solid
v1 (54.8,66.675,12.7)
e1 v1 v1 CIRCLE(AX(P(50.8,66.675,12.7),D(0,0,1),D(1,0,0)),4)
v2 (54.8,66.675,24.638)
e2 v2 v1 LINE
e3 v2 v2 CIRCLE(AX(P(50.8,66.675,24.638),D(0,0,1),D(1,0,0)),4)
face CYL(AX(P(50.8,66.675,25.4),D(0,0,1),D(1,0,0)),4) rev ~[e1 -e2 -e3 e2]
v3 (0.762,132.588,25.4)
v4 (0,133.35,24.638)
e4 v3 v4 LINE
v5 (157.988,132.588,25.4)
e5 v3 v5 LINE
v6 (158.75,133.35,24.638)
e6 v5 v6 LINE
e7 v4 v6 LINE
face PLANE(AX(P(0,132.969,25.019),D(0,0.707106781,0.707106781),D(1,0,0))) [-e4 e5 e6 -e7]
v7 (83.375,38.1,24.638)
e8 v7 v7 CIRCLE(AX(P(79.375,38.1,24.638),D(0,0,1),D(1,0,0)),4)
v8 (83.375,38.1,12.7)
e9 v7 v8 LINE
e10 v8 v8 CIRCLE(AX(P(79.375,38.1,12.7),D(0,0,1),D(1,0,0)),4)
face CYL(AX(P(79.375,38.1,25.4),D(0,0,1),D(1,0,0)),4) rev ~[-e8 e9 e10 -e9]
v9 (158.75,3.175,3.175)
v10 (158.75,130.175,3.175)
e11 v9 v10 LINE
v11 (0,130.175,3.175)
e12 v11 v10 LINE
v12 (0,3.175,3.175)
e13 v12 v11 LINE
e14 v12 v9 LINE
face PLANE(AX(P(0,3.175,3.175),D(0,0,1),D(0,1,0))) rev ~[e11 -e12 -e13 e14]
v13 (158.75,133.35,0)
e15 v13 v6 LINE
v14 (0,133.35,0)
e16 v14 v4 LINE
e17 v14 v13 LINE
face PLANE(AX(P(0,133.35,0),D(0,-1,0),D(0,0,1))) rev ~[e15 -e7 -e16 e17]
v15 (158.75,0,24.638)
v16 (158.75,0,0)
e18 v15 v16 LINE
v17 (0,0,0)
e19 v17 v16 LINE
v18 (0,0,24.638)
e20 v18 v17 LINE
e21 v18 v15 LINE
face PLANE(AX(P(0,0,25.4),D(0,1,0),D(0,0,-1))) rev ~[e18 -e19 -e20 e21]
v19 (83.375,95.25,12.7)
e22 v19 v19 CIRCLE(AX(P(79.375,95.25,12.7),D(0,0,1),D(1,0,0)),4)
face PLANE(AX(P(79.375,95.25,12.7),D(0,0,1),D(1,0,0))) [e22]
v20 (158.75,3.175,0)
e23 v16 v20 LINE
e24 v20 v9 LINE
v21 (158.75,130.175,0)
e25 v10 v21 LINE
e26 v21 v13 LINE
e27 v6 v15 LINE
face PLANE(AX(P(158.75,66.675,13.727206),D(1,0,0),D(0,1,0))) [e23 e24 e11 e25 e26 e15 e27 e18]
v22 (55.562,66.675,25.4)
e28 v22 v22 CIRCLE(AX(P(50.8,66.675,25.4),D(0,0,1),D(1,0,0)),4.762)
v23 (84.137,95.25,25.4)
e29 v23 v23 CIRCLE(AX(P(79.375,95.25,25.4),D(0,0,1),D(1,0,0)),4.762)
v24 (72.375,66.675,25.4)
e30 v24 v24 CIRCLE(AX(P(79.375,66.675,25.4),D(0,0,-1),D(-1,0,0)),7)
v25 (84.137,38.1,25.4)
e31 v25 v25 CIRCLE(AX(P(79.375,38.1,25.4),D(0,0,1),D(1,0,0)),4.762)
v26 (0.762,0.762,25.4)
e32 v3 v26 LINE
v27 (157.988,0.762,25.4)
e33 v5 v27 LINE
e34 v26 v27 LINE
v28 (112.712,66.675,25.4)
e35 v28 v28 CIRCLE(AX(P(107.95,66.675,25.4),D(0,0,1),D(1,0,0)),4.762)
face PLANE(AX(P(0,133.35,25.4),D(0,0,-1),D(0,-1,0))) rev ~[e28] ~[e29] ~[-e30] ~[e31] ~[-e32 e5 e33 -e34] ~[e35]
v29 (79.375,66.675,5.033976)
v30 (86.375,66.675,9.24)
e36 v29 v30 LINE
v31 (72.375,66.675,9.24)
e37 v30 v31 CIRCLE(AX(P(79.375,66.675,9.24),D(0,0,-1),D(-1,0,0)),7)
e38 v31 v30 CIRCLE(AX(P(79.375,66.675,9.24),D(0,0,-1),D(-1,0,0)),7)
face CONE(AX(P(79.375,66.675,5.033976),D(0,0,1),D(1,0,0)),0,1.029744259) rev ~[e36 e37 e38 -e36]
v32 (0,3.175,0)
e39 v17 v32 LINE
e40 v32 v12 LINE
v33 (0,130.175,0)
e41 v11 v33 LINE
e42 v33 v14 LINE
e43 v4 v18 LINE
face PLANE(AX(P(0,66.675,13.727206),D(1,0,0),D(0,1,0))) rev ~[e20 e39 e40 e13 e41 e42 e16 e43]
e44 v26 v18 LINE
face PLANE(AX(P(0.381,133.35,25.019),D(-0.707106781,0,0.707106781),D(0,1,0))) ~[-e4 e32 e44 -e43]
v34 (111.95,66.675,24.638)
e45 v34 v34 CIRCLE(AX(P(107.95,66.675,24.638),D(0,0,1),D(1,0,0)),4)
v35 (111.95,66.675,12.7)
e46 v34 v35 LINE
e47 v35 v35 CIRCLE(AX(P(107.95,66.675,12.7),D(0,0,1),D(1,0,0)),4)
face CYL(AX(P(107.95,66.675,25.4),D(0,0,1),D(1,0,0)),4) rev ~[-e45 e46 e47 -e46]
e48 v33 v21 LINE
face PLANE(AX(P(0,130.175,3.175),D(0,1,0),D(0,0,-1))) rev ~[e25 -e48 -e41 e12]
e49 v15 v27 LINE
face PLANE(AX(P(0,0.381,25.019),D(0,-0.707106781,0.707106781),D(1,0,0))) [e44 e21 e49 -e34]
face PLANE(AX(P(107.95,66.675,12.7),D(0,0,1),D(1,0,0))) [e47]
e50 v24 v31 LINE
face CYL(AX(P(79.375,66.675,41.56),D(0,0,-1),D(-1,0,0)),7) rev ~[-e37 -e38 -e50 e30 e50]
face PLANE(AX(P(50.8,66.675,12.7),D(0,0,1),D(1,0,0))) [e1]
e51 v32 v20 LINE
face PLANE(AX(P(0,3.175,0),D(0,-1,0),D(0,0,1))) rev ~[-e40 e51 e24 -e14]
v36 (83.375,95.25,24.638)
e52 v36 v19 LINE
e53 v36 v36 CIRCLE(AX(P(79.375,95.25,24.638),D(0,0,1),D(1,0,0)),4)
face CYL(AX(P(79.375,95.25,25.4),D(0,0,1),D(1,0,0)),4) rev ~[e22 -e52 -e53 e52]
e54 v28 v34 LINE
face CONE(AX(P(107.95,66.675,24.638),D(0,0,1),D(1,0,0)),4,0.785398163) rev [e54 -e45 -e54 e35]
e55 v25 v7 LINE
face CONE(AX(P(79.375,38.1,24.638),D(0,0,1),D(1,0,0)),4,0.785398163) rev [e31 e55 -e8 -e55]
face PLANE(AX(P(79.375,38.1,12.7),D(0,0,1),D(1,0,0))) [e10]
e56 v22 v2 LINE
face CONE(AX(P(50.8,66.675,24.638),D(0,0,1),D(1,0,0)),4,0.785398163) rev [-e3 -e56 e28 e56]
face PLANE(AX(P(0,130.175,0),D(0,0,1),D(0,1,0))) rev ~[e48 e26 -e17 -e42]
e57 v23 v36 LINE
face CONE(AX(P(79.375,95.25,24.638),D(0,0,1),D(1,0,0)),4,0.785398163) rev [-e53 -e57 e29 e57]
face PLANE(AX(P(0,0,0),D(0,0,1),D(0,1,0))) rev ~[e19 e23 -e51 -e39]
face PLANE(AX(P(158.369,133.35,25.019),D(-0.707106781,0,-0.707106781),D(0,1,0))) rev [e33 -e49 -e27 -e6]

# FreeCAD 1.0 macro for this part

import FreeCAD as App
import Part
import Sketcher
Q = App.Units.Quantity


def edges_at(feature, points):
    """Names of the edges that pass closest to the given points."""
    edges = feature.Shape.Edges
    near = lambda p: min(range(len(edges)), key=lambda i: edges[i].distToShape(Part.Vertex(*p))[0])
    return sorted({f"Edge{near(p) + 1}" for p in points})


def add_polygon(sketch, points):
    """Adds a closed chain of lines whose ends are joined by coincident constraints."""
    first, n = sketch.GeometryCount, len(points)
    for a, b in zip(points, points[1:] + points[:1]):
        sketch.addGeometry(Part.LineSegment(App.Vector(*a, 0), App.Vector(*b, 0)), False)
    for i in range(n):
        sketch.addConstraint(Sketcher.Constraint("Coincident", first + i, 2, first + (i + 1) % n, 1))

doc = App.newDocument("Part")
body = doc.addObject("PartDesign::Body", "Body")

# Sketch on YZ plane
sketch1 = doc.addObject("Sketcher::SketchObject", "Sketch")
body.addObject(sketch1)
sketch1.AttachmentSupport = (doc.YZ_Plane, [""])
sketch1.MapMode = "FlatFace"
add_polygon(sketch1, [(0, 25.4), (0, 0), (3.2, 0), (3.2, 3.2), (130.2, 3.2), (130.2, 0), (133.3, 0), (133.3, 25.4)])  # lines 0-7
sketch1.addConstraint([
    Sketcher.Constraint("Vertical", 0),
    Sketcher.Constraint("Horizontal", 1),
    Sketcher.Constraint("Vertical", 2),
    Sketcher.Constraint("Horizontal", 3),
    Sketcher.Constraint("Vertical", 4),
    Sketcher.Constraint("Horizontal", 5),
    Sketcher.Constraint("Vertical", 6),
    Sketcher.Constraint("Horizontal", 7),
    Sketcher.Constraint("Coincident", 0, 2, -1, 1),
    Sketcher.Constraint("PointOnObject", 4, 2, -1),
    Sketcher.Constraint("Equal", 1, 5),
    Sketcher.Constraint("Equal", 5, 2),
    Sketcher.Constraint("DistanceX", 3, 1, 3, 2, Q("5 in")),
    Sketcher.Constraint("DistanceY", 0, 2, 0, 1, Q("1 in")),
    Sketcher.Constraint("DistanceX", 7, 2, 7, 1, Q("5.25 in")),
])
pad1 = doc.addObject("PartDesign::Pad", "Pad")
body.addObject(pad1)
pad1.Profile = sketch1
pad1.Length = Q("6.25 in")

# Sketch on XY plane
sketch2 = doc.addObject("Sketcher::SketchObject", "Sketch001")
body.addObject(sketch2)
sketch2.AttachmentSupport = (doc.XY_Plane, [""])
sketch2.MapMode = "FlatFace"
sketch2.AttachmentOffset = App.Placement(App.Vector(0, 0, 1 * 25.4), App.Rotation())
sketch2.addGeometry([
    Part.Circle(App.Vector(79.4, 95.2, 0), App.Vector(0, 0, 1), 4),
    Part.Circle(App.Vector(50.8, 66.7, 0), App.Vector(0, 0, 1), 4),
    Part.Circle(App.Vector(79.4, 38.1, 0), App.Vector(0, 0, 1), 4),
    Part.Circle(App.Vector(108, 66.7, 0), App.Vector(0, 0, 1), 4),
], False)
sketch2.addConstraint([
    Sketcher.Constraint("Equal", 0, 1),
    Sketcher.Constraint("Equal", 1, 2),
    Sketcher.Constraint("Equal", 2, 3),
    Sketcher.Constraint("Horizontal", 1, 3, 3, 3),
    Sketcher.Constraint("Vertical", 0, 3, 2, 3),
    Sketcher.Constraint("DistanceX", -1, 1, 1, 3, Q("2 in")),
    Sketcher.Constraint("DistanceY", -1, 1, 2, 3, Q("1.5 in")),
    Sketcher.Constraint("Diameter", 0, Q("8 mm")),
    Sketcher.Constraint("DistanceY", -1, 1, 0, 3, Q("3.75 in")),
    Sketcher.Constraint("DistanceX", -1, 1, 3, 3, Q("4.25 in")),
    Sketcher.Constraint("DistanceX", -1, 1, 0, 3, Q("3.125 in")),
    Sketcher.Constraint("DistanceY", -1, 1, 1, 3, Q("2.625 in")),
])
pocket1 = doc.addObject("PartDesign::Pocket", "Pocket")
body.addObject(pocket1)
pocket1.Profile = sketch2
pocket1.Length = Q("0.5 in")
doc.recompute()

chamfer = doc.addObject("PartDesign::Chamfer", "Chamfer")
body.addObject(chamfer)
chamfer.Base = (pocket1, edges_at(pocket1, [
    (75.375, 95.25, 25.4),
    (103.95, 66.675, 25.4),
    (75.375, 38.1, 25.4),
    (46.8, 66.675, 25.4),
    (79.375, 133.35, 25.4),
    (0, 66.675, 25.4),
    (79.375, 0, 25.4),
    (158.75, 66.675, 25.4),
]))
chamfer.Size = Q("0.03 in")

# Sketch on XY plane
sketch3 = doc.addObject("Sketcher::SketchObject", "Sketch002")
body.addObject(sketch3)
sketch3.AttachmentSupport = (doc.XY_Plane, [""])
sketch3.MapMode = "FlatFace"
sketch3.AttachmentOffset = App.Placement(App.Vector(0, 0, 1 * 25.4), App.Rotation())
sketch3.addGeometry(Part.Circle(App.Vector(79, 67, 0), App.Vector(0, 0, 1), 7), False)
sketch3.addConstraint([
    Sketcher.Constraint("Diameter", 0, Q("14 mm")),
    Sketcher.Constraint("DistanceX", -1, 1, 0, 3, Q("3.125 in")),
    Sketcher.Constraint("DistanceY", -1, 1, 0, 3, Q("2.625 in")),
])
doc.recompute()
hole = doc.addObject("PartDesign::Hole", "Hole")
body.addObject(hole)
hole.Profile = sketch3
hole.ThreadType = "None"
hole.Diameter = 14
hole.DepthType = "Dimension"
hole.Depth = 16.16
hole.DrillPoint = "Angled"
hole.DrillPointAngle = 118

doc.recompute()
